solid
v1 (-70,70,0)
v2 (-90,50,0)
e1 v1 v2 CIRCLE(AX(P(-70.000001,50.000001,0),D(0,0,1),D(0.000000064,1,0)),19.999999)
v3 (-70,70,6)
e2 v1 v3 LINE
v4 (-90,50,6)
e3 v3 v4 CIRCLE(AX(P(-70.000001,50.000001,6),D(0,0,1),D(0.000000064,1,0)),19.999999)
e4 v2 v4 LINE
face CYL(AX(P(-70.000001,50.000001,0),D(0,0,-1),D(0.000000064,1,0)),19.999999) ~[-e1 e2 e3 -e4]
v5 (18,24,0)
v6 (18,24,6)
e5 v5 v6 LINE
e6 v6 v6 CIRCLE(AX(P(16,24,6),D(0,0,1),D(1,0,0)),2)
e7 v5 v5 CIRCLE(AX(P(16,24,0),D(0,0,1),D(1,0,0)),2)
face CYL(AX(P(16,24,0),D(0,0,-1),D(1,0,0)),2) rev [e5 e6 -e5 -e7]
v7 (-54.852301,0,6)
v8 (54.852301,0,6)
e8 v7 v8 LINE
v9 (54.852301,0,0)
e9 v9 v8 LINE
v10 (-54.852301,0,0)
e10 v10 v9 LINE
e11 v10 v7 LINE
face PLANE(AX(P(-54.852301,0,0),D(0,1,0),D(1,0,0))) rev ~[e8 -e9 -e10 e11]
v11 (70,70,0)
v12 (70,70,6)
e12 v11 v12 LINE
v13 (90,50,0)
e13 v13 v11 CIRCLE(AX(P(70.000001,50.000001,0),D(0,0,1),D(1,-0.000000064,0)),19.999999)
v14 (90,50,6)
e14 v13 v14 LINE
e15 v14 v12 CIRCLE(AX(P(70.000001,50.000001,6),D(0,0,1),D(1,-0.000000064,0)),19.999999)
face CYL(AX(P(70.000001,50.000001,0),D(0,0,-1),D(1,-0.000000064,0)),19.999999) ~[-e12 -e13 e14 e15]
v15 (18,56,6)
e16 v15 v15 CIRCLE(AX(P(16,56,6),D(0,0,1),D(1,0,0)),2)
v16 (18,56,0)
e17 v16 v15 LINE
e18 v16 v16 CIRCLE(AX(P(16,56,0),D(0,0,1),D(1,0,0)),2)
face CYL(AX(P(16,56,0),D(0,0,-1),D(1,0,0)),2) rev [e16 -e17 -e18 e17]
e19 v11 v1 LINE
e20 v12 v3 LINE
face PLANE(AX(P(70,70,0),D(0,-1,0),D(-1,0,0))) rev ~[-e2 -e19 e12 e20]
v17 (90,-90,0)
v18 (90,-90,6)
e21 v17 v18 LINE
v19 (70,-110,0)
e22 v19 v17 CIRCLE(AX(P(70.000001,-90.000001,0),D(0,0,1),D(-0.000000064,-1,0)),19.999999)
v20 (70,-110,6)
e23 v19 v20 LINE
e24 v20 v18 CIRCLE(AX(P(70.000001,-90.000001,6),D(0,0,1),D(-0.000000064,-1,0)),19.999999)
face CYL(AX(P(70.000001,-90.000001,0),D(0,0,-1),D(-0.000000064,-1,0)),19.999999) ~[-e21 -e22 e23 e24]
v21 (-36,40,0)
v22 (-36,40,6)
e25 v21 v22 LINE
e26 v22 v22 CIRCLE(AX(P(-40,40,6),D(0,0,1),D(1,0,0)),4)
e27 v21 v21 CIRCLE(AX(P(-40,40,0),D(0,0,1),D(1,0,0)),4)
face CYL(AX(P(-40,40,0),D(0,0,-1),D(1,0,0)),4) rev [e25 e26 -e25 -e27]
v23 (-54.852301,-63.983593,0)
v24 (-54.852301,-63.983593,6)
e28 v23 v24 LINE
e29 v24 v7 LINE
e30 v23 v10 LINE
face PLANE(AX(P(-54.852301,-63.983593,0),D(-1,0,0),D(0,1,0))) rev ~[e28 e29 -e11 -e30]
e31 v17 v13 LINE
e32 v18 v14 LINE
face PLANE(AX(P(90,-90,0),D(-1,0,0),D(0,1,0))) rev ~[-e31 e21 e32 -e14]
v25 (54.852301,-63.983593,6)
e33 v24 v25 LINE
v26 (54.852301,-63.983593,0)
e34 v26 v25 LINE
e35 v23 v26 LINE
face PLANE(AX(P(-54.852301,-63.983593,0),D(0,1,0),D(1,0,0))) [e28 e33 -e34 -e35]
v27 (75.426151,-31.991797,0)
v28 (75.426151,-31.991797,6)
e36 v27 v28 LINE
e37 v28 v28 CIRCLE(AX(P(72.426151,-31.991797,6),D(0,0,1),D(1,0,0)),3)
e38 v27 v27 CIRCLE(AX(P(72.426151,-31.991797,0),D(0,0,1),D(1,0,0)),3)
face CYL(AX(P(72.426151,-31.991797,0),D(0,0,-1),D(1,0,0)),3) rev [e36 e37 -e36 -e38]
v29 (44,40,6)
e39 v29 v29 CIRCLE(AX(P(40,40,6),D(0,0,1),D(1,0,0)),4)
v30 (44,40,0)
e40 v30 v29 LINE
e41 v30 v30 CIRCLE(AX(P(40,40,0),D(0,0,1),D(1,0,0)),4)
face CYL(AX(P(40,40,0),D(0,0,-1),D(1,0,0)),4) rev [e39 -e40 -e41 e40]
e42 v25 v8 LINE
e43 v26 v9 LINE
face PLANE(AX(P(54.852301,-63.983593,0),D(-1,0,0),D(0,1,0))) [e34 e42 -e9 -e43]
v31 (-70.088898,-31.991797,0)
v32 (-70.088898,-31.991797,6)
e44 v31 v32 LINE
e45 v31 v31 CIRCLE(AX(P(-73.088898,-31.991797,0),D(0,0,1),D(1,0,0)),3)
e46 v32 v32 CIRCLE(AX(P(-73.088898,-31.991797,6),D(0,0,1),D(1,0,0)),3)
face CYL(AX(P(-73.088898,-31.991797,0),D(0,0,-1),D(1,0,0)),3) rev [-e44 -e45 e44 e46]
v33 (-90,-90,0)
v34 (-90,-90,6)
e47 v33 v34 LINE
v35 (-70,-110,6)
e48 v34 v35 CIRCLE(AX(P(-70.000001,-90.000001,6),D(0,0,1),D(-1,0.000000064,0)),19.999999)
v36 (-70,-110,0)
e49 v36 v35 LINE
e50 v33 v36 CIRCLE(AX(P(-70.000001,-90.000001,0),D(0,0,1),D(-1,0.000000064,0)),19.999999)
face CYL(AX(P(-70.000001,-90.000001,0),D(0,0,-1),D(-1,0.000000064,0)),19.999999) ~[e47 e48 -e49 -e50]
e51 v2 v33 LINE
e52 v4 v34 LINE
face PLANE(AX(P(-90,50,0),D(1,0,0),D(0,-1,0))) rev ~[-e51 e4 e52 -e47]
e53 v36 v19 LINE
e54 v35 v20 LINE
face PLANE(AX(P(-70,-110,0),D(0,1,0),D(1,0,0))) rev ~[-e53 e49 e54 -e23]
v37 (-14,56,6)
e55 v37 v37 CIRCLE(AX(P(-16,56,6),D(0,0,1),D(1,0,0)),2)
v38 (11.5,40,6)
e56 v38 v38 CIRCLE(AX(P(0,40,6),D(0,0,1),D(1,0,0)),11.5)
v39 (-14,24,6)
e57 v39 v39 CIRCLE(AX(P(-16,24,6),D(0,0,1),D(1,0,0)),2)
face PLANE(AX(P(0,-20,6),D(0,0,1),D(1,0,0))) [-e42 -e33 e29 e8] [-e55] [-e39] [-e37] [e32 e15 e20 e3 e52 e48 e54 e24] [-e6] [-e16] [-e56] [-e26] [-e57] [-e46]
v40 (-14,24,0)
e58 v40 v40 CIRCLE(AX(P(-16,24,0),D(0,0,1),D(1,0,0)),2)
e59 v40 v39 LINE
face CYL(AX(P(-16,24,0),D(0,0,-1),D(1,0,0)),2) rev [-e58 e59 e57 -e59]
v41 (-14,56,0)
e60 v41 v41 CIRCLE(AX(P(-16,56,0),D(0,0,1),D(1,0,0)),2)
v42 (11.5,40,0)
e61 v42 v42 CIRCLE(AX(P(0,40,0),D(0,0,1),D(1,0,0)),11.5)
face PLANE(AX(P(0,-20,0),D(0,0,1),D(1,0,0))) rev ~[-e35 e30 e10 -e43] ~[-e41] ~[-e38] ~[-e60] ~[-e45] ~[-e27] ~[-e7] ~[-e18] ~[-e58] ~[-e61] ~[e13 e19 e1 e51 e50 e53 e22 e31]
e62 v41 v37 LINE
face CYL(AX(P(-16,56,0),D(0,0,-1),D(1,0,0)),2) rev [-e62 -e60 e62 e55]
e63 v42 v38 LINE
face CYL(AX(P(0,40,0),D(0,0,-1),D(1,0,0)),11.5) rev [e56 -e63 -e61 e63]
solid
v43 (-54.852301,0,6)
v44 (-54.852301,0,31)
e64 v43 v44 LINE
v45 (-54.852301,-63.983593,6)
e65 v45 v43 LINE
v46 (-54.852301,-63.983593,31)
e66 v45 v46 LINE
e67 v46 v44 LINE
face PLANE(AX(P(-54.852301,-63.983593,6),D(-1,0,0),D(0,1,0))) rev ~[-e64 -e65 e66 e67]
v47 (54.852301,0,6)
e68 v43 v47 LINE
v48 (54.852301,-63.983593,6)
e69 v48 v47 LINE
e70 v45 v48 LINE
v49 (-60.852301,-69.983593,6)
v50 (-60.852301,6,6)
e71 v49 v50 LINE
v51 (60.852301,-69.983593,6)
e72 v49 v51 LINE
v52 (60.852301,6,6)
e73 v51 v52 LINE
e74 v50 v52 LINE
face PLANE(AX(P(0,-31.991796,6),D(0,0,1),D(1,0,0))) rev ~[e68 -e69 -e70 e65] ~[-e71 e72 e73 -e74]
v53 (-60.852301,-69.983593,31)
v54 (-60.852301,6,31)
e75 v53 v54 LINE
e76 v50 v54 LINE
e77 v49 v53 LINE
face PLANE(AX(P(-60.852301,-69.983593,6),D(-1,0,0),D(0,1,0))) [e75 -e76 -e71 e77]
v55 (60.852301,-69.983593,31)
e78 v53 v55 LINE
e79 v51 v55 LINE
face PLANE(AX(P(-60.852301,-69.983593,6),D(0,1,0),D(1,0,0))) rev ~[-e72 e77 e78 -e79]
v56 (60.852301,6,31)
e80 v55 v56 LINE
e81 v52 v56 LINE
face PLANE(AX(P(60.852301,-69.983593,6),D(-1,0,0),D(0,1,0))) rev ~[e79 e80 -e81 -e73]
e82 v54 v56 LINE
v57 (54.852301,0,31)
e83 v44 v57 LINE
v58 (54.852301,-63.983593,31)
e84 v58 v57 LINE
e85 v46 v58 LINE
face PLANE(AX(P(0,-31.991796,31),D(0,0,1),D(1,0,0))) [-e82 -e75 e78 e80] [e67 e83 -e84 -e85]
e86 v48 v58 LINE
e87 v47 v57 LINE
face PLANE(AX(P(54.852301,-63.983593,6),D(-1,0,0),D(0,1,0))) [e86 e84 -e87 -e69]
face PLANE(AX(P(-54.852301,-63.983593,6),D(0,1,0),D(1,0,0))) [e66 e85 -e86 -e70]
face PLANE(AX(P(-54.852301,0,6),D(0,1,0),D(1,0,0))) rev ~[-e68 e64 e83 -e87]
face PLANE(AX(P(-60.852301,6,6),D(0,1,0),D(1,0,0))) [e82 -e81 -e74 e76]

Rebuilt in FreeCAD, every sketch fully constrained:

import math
import FreeCAD as App
import Part
import Sketcher


def add_polygon(sketch, points):
    """Adds a closed chain of lines whose ends are joined by coincident constraints."""
    first, n = sketch.GeometryCount, len(points)
    for a, b in zip(points, points[1:] + points[:1]):
        sketch.addGeometry(Part.LineSegment(App.Vector(*a, 0), App.Vector(*b, 0)), False)
    for i in range(n):
        sketch.addConstraint(Sketcher.Constraint("Coincident", first + i, 2, first + (i + 1) % n, 1))

doc = App.newDocument("Part")
body = doc.addObject("PartDesign::Body", "Body")

# Sketch on XY plane
sketch1 = body.newObject("Sketcher::SketchObject", "Sketch")
sketch1.AttachmentSupport = (doc.getObject("XY_Plane"), [""])
sketch1.MapMode = "FlatFace"
sketch1.addGeometry(Part.LineSegment(App.Vector(70, 70, 0), App.Vector(-70, 70, 0)), False)  # 0
sketch1.addGeometry(Part.ArcOfCircle(Part.Circle(App.Vector(-70, 50, 0), App.Vector(0, 0, 1), 20), math.radians(90), math.radians(180)), False)  # 1
sketch1.addGeometry(Part.LineSegment(App.Vector(-90, 50, 0), App.Vector(-90, -90, 0)), False)  # 2
sketch1.addGeometry(Part.ArcOfCircle(Part.Circle(App.Vector(-70, -90, 0), App.Vector(0, 0, 1), 20), math.radians(180), math.radians(270)), False)  # 3
sketch1.addGeometry(Part.LineSegment(App.Vector(-70, -110, 0), App.Vector(70, -110, 0)), False)  # 4
sketch1.addGeometry(Part.ArcOfCircle(Part.Circle(App.Vector(70, -90, 0), App.Vector(0, 0, 1), 20), math.radians(-90), math.radians(0)), False)  # 5
sketch1.addGeometry(Part.LineSegment(App.Vector(90, -90, 0), App.Vector(90, 50, 0)), False)  # 6
sketch1.addGeometry(Part.ArcOfCircle(Part.Circle(App.Vector(70, 50, 0), App.Vector(0, 0, 1), 20), math.radians(0), math.radians(90)), False)  # 7
sketch1.addGeometry(Part.Circle(App.Vector(-73.1, -32, 0), App.Vector(0, 0, 1), 3), False)  # 8
add_polygon(sketch1, [(54.9, -64), (-54.9, -64), (-54.9, 0), (54.9, 0)])  # lines 9-12
sketch1.addGeometry(Part.Circle(App.Vector(72.4, -32, 0), App.Vector(0, 0, 1), 3), False)  # 13
sketch1.addGeometry(Part.Circle(App.Vector(-16, 24, 0), App.Vector(0, 0, 1), 2), False)  # 14
sketch1.addGeometry(Part.Circle(App.Vector(-40, 40, 0), App.Vector(0, 0, 1), 4), False)  # 15
sketch1.addGeometry(Part.Circle(App.Vector(-16, 56, 0), App.Vector(0, 0, 1), 2), False)  # 16
sketch1.addGeometry(Part.Circle(App.Vector(16, 24, 0), App.Vector(0, 0, 1), 2), False)  # 17
sketch1.addGeometry(Part.Circle(App.Vector(0, 40, 0), App.Vector(0, 0, 1), 11.5), False)  # 18
sketch1.addGeometry(Part.Circle(App.Vector(16, 56, 0), App.Vector(0, 0, 1), 2), False)  # 19
sketch1.addGeometry(Part.Circle(App.Vector(40, 40, 0), App.Vector(0, 0, 1), 4), False)  # 20
sketch1.addConstraint([
    Sketcher.Constraint("Tangent", 0, 2, 1, 1),
    Sketcher.Constraint("Tangent", 1, 2, 2, 1),
    Sketcher.Constraint("Tangent", 2, 2, 3, 1),
    Sketcher.Constraint("Tangent", 3, 2, 4, 1),
    Sketcher.Constraint("Tangent", 4, 2, 5, 1),
    Sketcher.Constraint("Tangent", 5, 2, 6, 1),
    Sketcher.Constraint("Tangent", 6, 2, 7, 1),
    Sketcher.Constraint("Tangent", 7, 2, 0, 1),
    Sketcher.Constraint("Horizontal", 0),
    Sketcher.Constraint("Vertical", 2),
    Sketcher.Constraint("Horizontal", 4),
    Sketcher.Constraint("Vertical", 6),
    Sketcher.Constraint("Horizontal", 9),
    Sketcher.Constraint("Vertical", 10),
    Sketcher.Constraint("Horizontal", 11),
    Sketcher.Constraint("Vertical", 12),
    Sketcher.Constraint("Equal", 1, 3),
    Sketcher.Constraint("Equal", 3, 5),
    Sketcher.Constraint("Equal", 5, 7),
    Sketcher.Constraint("Equal", 8, 13),
    Sketcher.Constraint("Equal", 14, 16),
    Sketcher.Constraint("Equal", 16, 17),
    Sketcher.Constraint("Equal", 17, 19),
    Sketcher.Constraint("Equal", 15, 20),
    Sketcher.Constraint("Symmetric", 10, 2, 11, 2, -1, 1),
    Sketcher.Constraint("Symmetric", 14, 3, 17, 3, -2),
    Sketcher.Constraint("Symmetric", 16, 3, 19, 3, -2),
    Sketcher.Constraint("Symmetric", 15, 3, 20, 3, -2),
    Sketcher.Constraint("PointOnObject", 18, 3, -2),
    Sketcher.Constraint("Horizontal", 8, 3, 13, 3),
    Sketcher.Constraint("Horizontal", 15, 3, 18, 3),
    Sketcher.Constraint("Vertical", 14, 3, 16, 3),
    Sketcher.Constraint("Equal", 4, 2),
    Sketcher.Constraint("Diameter", 8, 6.0),
    Sketcher.Constraint("Diameter", 14, 4.0),
    Sketcher.Constraint("Diameter", 15, 8.0),
    Sketcher.Constraint("Diameter", 18, 23.0),
    Sketcher.Constraint("Radius", 1, 19.999999),
    Sketcher.Constraint("DistanceX", 0, 2, 0, 1, 140.0),
    Sketcher.Constraint("DistanceX", 1, 3, -1, 1, 70.000001),
    Sketcher.Constraint("DistanceY", -1, 1, 1, 3, 50.000001),
    Sketcher.Constraint("DistanceX", 14, 3, -1, 1, 16.0),
    Sketcher.Constraint("DistanceY", -1, 1, 14, 3, 24.0),
    Sketcher.Constraint("DistanceX", 15, 3, -1, 1, 40.0),
    Sketcher.Constraint("DistanceY", -1, 1, 15, 3, 40.0),
    Sketcher.Constraint("DistanceY", -1, 1, 16, 3, 56.0),
    Sketcher.Constraint("DistanceX", 9, 2, 9, 1, 109.704602),
    Sketcher.Constraint("DistanceX", 8, 3, -1, 1, 73.088898),
    Sketcher.Constraint("DistanceY", 8, 3, 1, 3, 81.991798),
    Sketcher.Constraint("DistanceY", 10, 1, 10, 2, 63.983593),
    Sketcher.Constraint("DistanceX", -1, 1, 13, 3, 72.426151),
])
pad1 = body.newObject("PartDesign::Pad", "Pad")
pad1.Profile = sketch1
pad1.Length = 6
body2 = doc.addObject("PartDesign::Body", "Body001")

# Sketch on XY plane
sketch2 = body2.newObject("Sketcher::SketchObject", "Sketch001")
sketch2.AttachmentSupport = (doc.getObject("XY_Plane001"), [""])
sketch2.MapMode = "FlatFace"
sketch2.AttachmentOffset = App.Placement(App.Vector(0, 0, 6), App.Rotation())
add_polygon(sketch2, [(-61, 6), (-61, -70), (61, -70), (61, 6)])  # lines 0-3
add_polygon(sketch2, [(55, -64), (-55, -64), (-55, 0), (55, 0)])  # lines 4-7
sketch2.addConstraint([
    Sketcher.Constraint("Vertical", 0),
    Sketcher.Constraint("Horizontal", 1),
    Sketcher.Constraint("Vertical", 2),
    Sketcher.Constraint("Horizontal", 3),
    Sketcher.Constraint("Horizontal", 4),
    Sketcher.Constraint("Vertical", 5),
    Sketcher.Constraint("Horizontal", 6),
    Sketcher.Constraint("Vertical", 7),
    Sketcher.Constraint("Symmetric", 5, 2, 6, 2, -1, 1),
    Sketcher.Constraint("DistanceY", -1, 1, 2, 2, 6.0),
    Sketcher.Constraint("DistanceX", 0, 2, 4, 2, 6.0),
    Sketcher.Constraint("DistanceY", 0, 2, 4, 2, 6.0),
    Sketcher.Constraint("DistanceX", 6, 2, 2, 2, 6.0),
    Sketcher.Constraint("DistanceX", 1, 1, 1, 2, 121.704602),
    Sketcher.Constraint("DistanceY", 0, 2, 0, 1, 75.983593),
])
pad2 = body2.newObject("PartDesign::Pad", "Pad001")
pad2.Profile = sketch2
pad2.Length = 25

doc.recompute()
